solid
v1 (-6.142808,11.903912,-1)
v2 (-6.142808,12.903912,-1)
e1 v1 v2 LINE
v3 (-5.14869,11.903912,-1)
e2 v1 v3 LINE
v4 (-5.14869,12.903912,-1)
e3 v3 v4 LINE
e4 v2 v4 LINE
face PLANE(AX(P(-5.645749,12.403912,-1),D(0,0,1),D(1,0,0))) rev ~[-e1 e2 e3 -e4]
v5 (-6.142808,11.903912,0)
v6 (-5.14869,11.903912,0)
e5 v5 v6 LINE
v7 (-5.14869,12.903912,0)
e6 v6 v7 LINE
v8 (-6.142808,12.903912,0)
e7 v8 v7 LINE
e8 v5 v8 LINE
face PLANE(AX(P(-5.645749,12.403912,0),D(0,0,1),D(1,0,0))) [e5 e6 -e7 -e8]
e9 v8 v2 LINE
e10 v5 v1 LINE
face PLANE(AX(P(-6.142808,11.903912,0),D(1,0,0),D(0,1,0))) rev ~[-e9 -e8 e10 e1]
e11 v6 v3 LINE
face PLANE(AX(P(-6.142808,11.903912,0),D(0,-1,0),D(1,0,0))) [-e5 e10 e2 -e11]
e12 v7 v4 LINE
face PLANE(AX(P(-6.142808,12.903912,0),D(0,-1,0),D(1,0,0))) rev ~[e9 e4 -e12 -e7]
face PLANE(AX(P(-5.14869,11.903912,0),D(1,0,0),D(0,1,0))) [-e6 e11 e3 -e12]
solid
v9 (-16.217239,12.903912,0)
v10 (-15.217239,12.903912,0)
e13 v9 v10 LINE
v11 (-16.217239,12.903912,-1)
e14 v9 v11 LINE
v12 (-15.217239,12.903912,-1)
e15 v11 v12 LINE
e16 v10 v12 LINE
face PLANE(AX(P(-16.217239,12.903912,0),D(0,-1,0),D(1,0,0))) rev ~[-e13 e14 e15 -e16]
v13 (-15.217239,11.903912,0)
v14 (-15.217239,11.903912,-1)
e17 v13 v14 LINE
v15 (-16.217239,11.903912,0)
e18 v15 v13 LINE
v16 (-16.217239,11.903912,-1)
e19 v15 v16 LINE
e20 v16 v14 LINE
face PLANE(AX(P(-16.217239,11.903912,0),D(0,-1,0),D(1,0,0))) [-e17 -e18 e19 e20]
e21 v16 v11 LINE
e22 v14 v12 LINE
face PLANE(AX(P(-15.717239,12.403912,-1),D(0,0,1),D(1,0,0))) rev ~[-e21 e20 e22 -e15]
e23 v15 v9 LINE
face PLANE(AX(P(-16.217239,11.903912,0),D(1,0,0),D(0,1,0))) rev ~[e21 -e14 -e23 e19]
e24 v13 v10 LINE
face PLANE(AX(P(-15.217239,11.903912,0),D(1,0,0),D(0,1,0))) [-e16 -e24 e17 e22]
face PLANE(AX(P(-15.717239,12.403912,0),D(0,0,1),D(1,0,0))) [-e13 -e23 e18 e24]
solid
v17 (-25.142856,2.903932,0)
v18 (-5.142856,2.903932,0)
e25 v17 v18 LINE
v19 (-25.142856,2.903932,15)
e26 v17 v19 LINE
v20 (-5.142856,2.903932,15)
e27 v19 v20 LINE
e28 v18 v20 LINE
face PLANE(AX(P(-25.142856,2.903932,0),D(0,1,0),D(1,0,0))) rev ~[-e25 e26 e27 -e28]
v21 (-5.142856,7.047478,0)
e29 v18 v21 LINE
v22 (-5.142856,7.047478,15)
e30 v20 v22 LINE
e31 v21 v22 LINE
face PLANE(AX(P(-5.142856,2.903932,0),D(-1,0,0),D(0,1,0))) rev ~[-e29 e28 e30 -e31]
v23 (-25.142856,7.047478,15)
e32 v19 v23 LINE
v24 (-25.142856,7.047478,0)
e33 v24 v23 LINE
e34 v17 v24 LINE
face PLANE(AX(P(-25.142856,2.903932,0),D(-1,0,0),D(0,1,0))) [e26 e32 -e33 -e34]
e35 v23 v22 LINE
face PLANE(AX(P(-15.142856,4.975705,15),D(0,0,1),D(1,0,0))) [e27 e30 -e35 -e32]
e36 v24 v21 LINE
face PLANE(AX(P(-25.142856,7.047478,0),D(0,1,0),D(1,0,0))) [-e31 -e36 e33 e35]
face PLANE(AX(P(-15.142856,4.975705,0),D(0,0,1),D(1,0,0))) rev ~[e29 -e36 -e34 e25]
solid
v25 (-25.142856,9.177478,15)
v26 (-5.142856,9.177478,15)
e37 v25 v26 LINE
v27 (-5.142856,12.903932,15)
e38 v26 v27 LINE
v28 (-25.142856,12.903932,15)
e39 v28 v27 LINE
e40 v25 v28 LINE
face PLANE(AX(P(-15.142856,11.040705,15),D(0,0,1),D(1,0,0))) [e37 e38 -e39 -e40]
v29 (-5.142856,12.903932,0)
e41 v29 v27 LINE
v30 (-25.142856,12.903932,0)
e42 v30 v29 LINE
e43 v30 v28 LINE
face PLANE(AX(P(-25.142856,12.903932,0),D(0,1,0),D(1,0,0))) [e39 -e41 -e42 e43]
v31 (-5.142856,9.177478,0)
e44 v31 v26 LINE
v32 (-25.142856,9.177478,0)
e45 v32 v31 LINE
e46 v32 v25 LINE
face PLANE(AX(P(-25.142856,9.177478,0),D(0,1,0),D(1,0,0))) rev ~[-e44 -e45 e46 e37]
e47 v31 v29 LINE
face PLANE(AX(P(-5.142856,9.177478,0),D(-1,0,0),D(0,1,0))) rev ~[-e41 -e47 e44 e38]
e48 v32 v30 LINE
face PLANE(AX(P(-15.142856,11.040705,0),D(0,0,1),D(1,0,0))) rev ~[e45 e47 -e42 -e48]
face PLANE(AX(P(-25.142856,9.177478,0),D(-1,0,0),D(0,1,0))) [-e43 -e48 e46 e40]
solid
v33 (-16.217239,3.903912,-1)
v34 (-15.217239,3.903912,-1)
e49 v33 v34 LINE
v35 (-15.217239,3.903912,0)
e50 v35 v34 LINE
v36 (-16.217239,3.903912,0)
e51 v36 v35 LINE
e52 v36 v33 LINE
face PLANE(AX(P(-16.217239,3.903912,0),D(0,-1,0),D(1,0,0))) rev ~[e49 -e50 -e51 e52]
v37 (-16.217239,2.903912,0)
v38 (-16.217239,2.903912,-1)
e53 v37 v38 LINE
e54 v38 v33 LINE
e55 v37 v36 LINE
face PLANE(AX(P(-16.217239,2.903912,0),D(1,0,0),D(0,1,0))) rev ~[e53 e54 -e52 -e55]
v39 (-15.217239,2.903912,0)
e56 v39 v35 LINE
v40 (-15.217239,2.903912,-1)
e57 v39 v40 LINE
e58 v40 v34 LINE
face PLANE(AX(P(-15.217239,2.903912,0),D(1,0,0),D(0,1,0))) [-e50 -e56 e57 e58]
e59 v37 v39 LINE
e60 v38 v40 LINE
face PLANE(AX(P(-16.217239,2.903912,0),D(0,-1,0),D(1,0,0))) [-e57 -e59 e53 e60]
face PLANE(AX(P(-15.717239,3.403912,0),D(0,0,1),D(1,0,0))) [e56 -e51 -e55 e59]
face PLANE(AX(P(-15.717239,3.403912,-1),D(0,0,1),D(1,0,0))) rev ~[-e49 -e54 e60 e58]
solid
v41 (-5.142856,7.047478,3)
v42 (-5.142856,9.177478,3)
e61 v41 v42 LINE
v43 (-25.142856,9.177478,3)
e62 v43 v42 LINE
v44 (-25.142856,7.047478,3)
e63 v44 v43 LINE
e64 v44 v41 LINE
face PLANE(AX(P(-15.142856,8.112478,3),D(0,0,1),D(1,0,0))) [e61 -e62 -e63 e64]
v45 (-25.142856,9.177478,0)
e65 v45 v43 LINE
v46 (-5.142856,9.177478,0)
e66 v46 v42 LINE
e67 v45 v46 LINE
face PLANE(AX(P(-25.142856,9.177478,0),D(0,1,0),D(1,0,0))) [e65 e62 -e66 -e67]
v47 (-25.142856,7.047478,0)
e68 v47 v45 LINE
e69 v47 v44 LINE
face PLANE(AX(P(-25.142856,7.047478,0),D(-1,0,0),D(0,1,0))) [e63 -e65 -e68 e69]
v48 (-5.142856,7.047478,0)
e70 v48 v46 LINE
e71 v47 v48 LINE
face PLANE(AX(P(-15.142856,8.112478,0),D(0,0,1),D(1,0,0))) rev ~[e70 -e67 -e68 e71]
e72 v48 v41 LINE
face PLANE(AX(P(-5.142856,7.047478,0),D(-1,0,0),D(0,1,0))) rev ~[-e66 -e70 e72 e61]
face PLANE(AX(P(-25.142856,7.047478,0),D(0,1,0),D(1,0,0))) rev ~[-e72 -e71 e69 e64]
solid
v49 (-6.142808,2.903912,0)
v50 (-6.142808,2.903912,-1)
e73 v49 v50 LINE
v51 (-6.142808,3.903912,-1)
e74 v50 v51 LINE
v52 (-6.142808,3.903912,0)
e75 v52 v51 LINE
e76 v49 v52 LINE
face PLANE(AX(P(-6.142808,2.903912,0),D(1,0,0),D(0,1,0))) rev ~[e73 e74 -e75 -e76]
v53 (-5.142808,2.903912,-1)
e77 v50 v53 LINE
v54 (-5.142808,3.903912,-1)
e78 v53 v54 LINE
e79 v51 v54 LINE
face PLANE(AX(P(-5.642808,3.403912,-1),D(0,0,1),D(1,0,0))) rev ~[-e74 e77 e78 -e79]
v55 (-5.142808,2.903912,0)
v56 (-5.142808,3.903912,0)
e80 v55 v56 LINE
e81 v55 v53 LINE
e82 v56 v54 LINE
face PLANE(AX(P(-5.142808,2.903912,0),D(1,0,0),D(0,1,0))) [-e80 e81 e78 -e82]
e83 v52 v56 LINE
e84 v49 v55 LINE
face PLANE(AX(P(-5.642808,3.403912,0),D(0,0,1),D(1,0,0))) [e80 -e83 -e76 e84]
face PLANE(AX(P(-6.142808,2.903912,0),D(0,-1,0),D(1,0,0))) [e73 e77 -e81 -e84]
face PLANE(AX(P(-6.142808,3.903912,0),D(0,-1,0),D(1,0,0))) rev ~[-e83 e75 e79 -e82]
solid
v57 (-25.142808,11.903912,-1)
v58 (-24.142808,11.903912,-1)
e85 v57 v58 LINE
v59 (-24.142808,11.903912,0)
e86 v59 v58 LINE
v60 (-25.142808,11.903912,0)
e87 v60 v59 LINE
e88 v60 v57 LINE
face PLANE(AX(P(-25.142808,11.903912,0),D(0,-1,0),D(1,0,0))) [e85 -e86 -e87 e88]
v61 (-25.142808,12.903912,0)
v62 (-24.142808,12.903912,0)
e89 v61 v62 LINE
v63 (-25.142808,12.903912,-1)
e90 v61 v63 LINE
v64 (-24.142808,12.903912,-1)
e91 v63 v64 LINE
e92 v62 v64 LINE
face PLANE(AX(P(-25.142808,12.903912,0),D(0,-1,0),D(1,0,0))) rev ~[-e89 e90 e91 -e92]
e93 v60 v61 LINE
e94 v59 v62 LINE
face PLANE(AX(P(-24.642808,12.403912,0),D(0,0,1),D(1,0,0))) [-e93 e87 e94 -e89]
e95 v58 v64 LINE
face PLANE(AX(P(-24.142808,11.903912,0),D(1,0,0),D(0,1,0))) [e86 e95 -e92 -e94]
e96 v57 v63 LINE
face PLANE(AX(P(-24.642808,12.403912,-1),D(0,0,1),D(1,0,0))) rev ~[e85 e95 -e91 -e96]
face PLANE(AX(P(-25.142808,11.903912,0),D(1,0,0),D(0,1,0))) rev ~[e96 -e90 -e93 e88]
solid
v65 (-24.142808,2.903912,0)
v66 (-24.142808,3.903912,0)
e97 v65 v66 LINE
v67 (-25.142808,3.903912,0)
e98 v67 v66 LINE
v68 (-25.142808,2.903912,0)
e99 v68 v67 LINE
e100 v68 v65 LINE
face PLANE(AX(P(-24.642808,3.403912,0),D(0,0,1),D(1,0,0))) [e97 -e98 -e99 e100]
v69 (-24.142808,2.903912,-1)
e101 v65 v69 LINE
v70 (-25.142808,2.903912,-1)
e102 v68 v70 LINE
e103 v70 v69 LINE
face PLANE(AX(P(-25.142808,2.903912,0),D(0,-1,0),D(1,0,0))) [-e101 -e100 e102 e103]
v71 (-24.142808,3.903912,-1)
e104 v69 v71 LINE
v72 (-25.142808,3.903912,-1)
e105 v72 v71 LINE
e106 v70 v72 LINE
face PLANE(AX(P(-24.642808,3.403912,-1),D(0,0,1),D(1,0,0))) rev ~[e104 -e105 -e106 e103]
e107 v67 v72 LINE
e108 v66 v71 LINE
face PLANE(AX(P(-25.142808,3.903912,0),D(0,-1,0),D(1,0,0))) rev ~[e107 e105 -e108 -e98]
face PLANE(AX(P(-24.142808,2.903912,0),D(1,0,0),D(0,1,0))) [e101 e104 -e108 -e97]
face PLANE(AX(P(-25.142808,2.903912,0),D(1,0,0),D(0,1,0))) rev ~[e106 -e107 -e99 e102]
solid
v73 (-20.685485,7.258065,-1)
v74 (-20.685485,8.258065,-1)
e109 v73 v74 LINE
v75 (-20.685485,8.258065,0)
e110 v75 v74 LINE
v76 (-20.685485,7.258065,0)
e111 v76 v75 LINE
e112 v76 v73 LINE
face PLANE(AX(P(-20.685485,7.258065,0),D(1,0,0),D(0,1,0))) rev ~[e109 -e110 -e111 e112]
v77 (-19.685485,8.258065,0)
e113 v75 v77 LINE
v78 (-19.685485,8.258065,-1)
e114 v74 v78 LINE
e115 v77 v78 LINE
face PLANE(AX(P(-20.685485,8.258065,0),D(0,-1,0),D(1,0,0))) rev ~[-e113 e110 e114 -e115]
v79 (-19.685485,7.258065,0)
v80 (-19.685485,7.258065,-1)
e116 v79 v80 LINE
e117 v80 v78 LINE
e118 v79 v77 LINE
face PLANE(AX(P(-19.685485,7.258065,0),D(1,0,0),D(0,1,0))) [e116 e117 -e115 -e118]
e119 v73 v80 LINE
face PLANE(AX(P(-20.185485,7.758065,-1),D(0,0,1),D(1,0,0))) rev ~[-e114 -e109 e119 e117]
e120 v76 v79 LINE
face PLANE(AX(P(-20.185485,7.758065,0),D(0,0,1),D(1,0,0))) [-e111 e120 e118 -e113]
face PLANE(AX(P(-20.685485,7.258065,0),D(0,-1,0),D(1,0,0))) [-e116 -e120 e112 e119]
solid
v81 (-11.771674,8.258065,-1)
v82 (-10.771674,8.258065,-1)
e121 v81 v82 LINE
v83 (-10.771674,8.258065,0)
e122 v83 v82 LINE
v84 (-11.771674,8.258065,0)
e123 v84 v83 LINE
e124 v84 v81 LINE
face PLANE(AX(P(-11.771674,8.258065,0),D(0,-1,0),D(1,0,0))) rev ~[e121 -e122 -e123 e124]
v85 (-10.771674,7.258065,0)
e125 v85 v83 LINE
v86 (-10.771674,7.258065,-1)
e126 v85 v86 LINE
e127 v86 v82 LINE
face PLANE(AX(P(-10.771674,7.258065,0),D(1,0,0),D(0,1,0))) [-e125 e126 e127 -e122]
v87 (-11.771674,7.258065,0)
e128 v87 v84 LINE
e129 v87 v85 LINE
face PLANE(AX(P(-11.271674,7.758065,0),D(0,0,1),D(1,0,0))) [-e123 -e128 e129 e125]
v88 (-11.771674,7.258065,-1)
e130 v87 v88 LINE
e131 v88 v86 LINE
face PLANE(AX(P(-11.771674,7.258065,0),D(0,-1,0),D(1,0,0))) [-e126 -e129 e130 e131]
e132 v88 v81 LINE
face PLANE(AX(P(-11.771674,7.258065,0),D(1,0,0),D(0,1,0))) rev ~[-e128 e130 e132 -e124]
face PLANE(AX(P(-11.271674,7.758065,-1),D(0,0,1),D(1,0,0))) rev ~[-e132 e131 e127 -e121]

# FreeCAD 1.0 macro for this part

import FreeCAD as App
import Part
import Sketcher


def add_polygon(sketch, points):
    """Adds a closed chain of lines whose ends are joined by coincident constraints."""
    first, n = sketch.GeometryCount, len(points)
    for a, b in zip(points, points[1:] + points[:1]):
        sketch.addGeometry(Part.LineSegment(App.Vector(*a, 0), App.Vector(*b, 0)), False)
    for i in range(n):
        sketch.addConstraint(Sketcher.Constraint("Coincident", first + i, 2, first + (i + 1) % n, 1))

doc = App.newDocument("Part")
body = doc.addObject("PartDesign::Body", "Body")

# Sketch on XY plane
sketch1 = body.newObject("Sketcher::SketchObject", "Sketch")
sketch1.AttachmentSupport = (doc.getObject("XY_Plane"), [""])
sketch1.MapMode = "FlatFace"
add_polygon(sketch1, [(-25.1, 12.9), (-25.1, 9.2), (-5.1, 9.2), (-5.1, 12.9)])  # lines 0-3
sketch1.addConstraint(Sketcher.Constraint("Vertical", 0))
sketch1.addConstraint(Sketcher.Constraint("Horizontal", 1))
sketch1.addConstraint(Sketcher.Constraint("Vertical", 2))
sketch1.addConstraint(Sketcher.Constraint("Horizontal", 3))
sketch1.addConstraint(Sketcher.Constraint("DistanceX", 1, 1, 1, 2, 20.0))
sketch1.addConstraint(Sketcher.Constraint("DistanceY", 0, 2, 0, 1, 3.726454))
sketch1.addConstraint(Sketcher.Constraint("DistanceY", -1, 1, 0, 2, 9.177478))
sketch1.addConstraint(Sketcher.Constraint("DistanceX", 0, 2, -1, 1, 25.142856))
pad1 = body.newObject("PartDesign::Pad", "Pad")
pad1.Profile = sketch1
pad1.Length = 15
body2 = doc.addObject("PartDesign::Body", "Body001")

# Sketch on XY plane
sketch2 = body2.newObject("Sketcher::SketchObject", "Sketch001")
sketch2.AttachmentSupport = (doc.getObject("XY_Plane001"), [""])
sketch2.MapMode = "FlatFace"
add_polygon(sketch2, [(-25.1, 7), (-25.1, 2.9), (-5.1, 2.9), (-5.1, 7)])  # lines 0-3
sketch2.addConstraint(Sketcher.Constraint("Vertical", 0))
sketch2.addConstraint(Sketcher.Constraint("Horizontal", 1))
sketch2.addConstraint(Sketcher.Constraint("Vertical", 2))
sketch2.addConstraint(Sketcher.Constraint("Horizontal", 3))
sketch2.addConstraint(Sketcher.Constraint("DistanceX", 1, 1, 1, 2, 20.0))
sketch2.addConstraint(Sketcher.Constraint("DistanceY", 0, 2, 0, 1, 4.143546))
sketch2.addConstraint(Sketcher.Constraint("DistanceY", -1, 1, 2, 2, 7.047478))
sketch2.addConstraint(Sketcher.Constraint("DistanceX", 0, 2, -1, 1, 25.142856))
pad2 = body2.newObject("PartDesign::Pad", "Pad001")
pad2.Profile = sketch2
pad2.Length = 15
body3 = doc.addObject("PartDesign::Body", "Body002")

# Sketch on XY plane
sketch3 = body3.newObject("Sketcher::SketchObject", "Sketch002")
sketch3.AttachmentSupport = (doc.getObject("XY_Plane002"), [""])
sketch3.MapMode = "FlatFace"
add_polygon(sketch3, [(-25.1, 9.2), (-25.1, 7), (-5.1, 7), (-5.1, 9.2)])  # lines 0-3
sketch3.addConstraint(Sketcher.Constraint("Vertical", 0))
sketch3.addConstraint(Sketcher.Constraint("Horizontal", 1))
sketch3.addConstraint(Sketcher.Constraint("Vertical", 2))
sketch3.addConstraint(Sketcher.Constraint("Horizontal", 3))
sketch3.addConstraint(Sketcher.Constraint("DistanceX", 1, 1, 1, 2, 20.0))
sketch3.addConstraint(Sketcher.Constraint("DistanceY", 0, 2, 0, 1, 2.13))
sketch3.addConstraint(Sketcher.Constraint("DistanceY", -1, 1, 0, 2, 7.047478))
sketch3.addConstraint(Sketcher.Constraint("DistanceX", 0, 2, -1, 1, 25.142856))
pad3 = body3.newObject("PartDesign::Pad", "Pad002")
pad3.Profile = sketch3
pad3.Length = 3
body4 = doc.addObject("PartDesign::Body", "Body003")

# Sketch on XY plane
sketch4 = body4.newObject("Sketcher::SketchObject", "Sketch003")
sketch4.AttachmentSupport = (doc.getObject("XY_Plane003"), [""])
sketch4.MapMode = "FlatFace"
add_polygon(sketch4, [(-25.1, 3.9), (-25.1, 2.9), (-24.1, 2.9), (-24.1, 3.9)])  # lines 0-3
sketch4.addConstraint(Sketcher.Constraint("Vertical", 0))
sketch4.addConstraint(Sketcher.Constraint("Horizontal", 1))
sketch4.addConstraint(Sketcher.Constraint("Vertical", 2))
sketch4.addConstraint(Sketcher.Constraint("Horizontal", 3))
sketch4.addConstraint(Sketcher.Constraint("Equal", 3, 0))
sketch4.addConstraint(Sketcher.Constraint("DistanceX", 1, 1, 1, 2, 1.0))
sketch4.addConstraint(Sketcher.Constraint("DistanceX", 0, 2, -1, 1, 25.142808))
sketch4.addConstraint(Sketcher.Constraint("DistanceY", -1, 1, 0, 2, 2.903912))
pad4 = body4.newObject("PartDesign::Pad", "Pad003")
pad4.Profile = sketch4
pad4.Length = 1
pad4.Reversed = True
body5 = doc.addObject("PartDesign::Body", "Body004")

# Sketch on XY plane
sketch5 = body5.newObject("Sketcher::SketchObject", "Sketch004")
sketch5.AttachmentSupport = (doc.getObject("XY_Plane004"), [""])
sketch5.MapMode = "FlatFace"
add_polygon(sketch5, [(-6.1, 3.9), (-6.1, 2.9), (-5.1, 2.9), (-5.1, 3.9)])  # lines 0-3
sketch5.addConstraint(Sketcher.Constraint("Vertical", 0))
sketch5.addConstraint(Sketcher.Constraint("Horizontal", 1))
sketch5.addConstraint(Sketcher.Constraint("Vertical", 2))
sketch5.addConstraint(Sketcher.Constraint("Horizontal", 3))
sketch5.addConstraint(Sketcher.Constraint("Equal", 3, 0))
sketch5.addConstraint(Sketcher.Constraint("DistanceX", 1, 1, 1, 2, 1.0))
sketch5.addConstraint(Sketcher.Constraint("DistanceX", 0, 2, -1, 1, 6.142808))
sketch5.addConstraint(Sketcher.Constraint("DistanceY", -1, 1, 0, 2, 2.903912))
pad5 = body5.newObject("PartDesign::Pad", "Pad004")
pad5.Profile = sketch5
pad5.Length = 1
pad5.Reversed = True
body6 = doc.addObject("PartDesign::Body", "Body005")

# Sketch on XY plane
sketch6 = body6.newObject("Sketcher::SketchObject", "Sketch005")
sketch6.AttachmentSupport = (doc.getObject("XY_Plane005"), [""])
sketch6.MapMode = "FlatFace"
add_polygon(sketch6, [(-6.1, 12.9), (-6.1, 11.9), (-5.1, 11.9), (-5.1, 12.9)])  # lines 0-3
sketch6.addConstraint(Sketcher.Constraint("Vertical", 0))
sketch6.addConstraint(Sketcher.Constraint("Horizontal", 1))
sketch6.addConstraint(Sketcher.Constraint("Vertical", 2))
sketch6.addConstraint(Sketcher.Constraint("Horizontal", 3))
sketch6.addConstraint(Sketcher.Constraint("DistanceY", 0, 2, 0, 1, 1.0))
sketch6.addConstraint(Sketcher.Constraint("DistanceX", 1, 1, 1, 2, 0.994118))
sketch6.addConstraint(Sketcher.Constraint("DistanceX", 1, 2, -1, 1, 5.14869))
sketch6.addConstraint(Sketcher.Constraint("DistanceY", -1, 1, 0, 2, 11.903912))
pad6 = body6.newObject("PartDesign::Pad", "Pad005")
pad6.Profile = sketch6
pad6.Length = 1
pad6.Reversed = True
body7 = doc.addObject("PartDesign::Body", "Body006")

# Sketch on XY plane
sketch7 = body7.newObject("Sketcher::SketchObject", "Sketch006")
sketch7.AttachmentSupport = (doc.getObject("XY_Plane006"), [""])
sketch7.MapMode = "FlatFace"
add_polygon(sketch7, [(-11.8, 8.3), (-11.8, 7.3), (-10.8, 7.3), (-10.8, 8.3)])  # lines 0-3
sketch7.addConstraint(Sketcher.Constraint("Vertical", 0))
sketch7.addConstraint(Sketcher.Constraint("Horizontal", 1))
sketch7.addConstraint(Sketcher.Constraint("Vertical", 2))
sketch7.addConstraint(Sketcher.Constraint("Horizontal", 3))
sketch7.addConstraint(Sketcher.Constraint("Equal", 3, 0))
sketch7.addConstraint(Sketcher.Constraint("DistanceX", 1, 1, 1, 2, 1.0))
sketch7.addConstraint(Sketcher.Constraint("DistanceX", 0, 2, -1, 1, 11.771674))
sketch7.addConstraint(Sketcher.Constraint("DistanceY", -1, 1, 0, 2, 7.258065))
pad7 = body7.newObject("PartDesign::Pad", "Pad006")
pad7.Profile = sketch7
pad7.Length = 1
pad7.Reversed = True
body8 = doc.addObject("PartDesign::Body", "Body007")

# Sketch on XY plane
sketch8 = body8.newObject("Sketcher::SketchObject", "Sketch007")
sketch8.AttachmentSupport = (doc.getObject("XY_Plane007"), [""])
sketch8.MapMode = "FlatFace"
add_polygon(sketch8, [(-20.7, 8.3), (-20.7, 7.3), (-19.7, 7.3), (-19.7, 8.3)])  # lines 0-3
sketch8.addConstraint(Sketcher.Constraint("Vertical", 0))
sketch8.addConstraint(Sketcher.Constraint("Horizontal", 1))
sketch8.addConstraint(Sketcher.Constraint("Vertical", 2))
sketch8.addConstraint(Sketcher.Constraint("Horizontal", 3))
sketch8.addConstraint(Sketcher.Constraint("Equal", 3, 0))
sketch8.addConstraint(Sketcher.Constraint("DistanceX", 1, 1, 1, 2, 1.0))
sketch8.addConstraint(Sketcher.Constraint("DistanceX", 0, 2, -1, 1, 20.685485))
sketch8.addConstraint(Sketcher.Constraint("DistanceY", -1, 1, 0, 2, 7.258065))
pad8 = body8.newObject("PartDesign::Pad", "Pad007")
pad8.Profile = sketch8
pad8.Length = 1
pad8.Reversed = True
body9 = doc.addObject("PartDesign::Body", "Body008")

# Sketch on XY plane
sketch9 = body9.newObject("Sketcher::SketchObject", "Sketch008")
sketch9.AttachmentSupport = (doc.getObject("XY_Plane008"), [""])
sketch9.MapMode = "FlatFace"
add_polygon(sketch9, [(-25.1, 12.9), (-25.1, 11.9), (-24.1, 11.9), (-24.1, 12.9)])  # lines 0-3
sketch9.addConstraint(Sketcher.Constraint("Vertical", 0))
sketch9.addConstraint(Sketcher.Constraint("Horizontal", 1))
sketch9.addConstraint(Sketcher.Constraint("Vertical", 2))
sketch9.addConstraint(Sketcher.Constraint("Horizontal", 3))
sketch9.addConstraint(Sketcher.Constraint("Equal", 3, 0))
sketch9.addConstraint(Sketcher.Constraint("DistanceX", 1, 1, 1, 2, 1.0))
sketch9.addConstraint(Sketcher.Constraint("DistanceX", 0, 2, -1, 1, 25.142808))
sketch9.addConstraint(Sketcher.Constraint("DistanceY", -1, 1, 0, 2, 11.903912))
pad9 = body9.newObject("PartDesign::Pad", "Pad008")
pad9.Profile = sketch9
pad9.Length = 1
pad9.Reversed = True
body10 = doc.addObject("PartDesign::Body", "Body009")

# Sketch on XY plane
sketch10 = body10.newObject("Sketcher::SketchObject", "Sketch009")
sketch10.AttachmentSupport = (doc.getObject("XY_Plane009"), [""])
sketch10.MapMode = "FlatFace"
add_polygon(sketch10, [(-16.2, 12.9), (-16.2, 11.9), (-15.2, 11.9), (-15.2, 12.9)])  # lines 0-3
sketch10.addConstraint(Sketcher.Constraint("Vertical", 0))
sketch10.addConstraint(Sketcher.Constraint("Horizontal", 1))
sketch10.addConstraint(Sketcher.Constraint("Vertical", 2))
sketch10.addConstraint(Sketcher.Constraint("Horizontal", 3))
sketch10.addConstraint(Sketcher.Constraint("Equal", 3, 0))
sketch10.addConstraint(Sketcher.Constraint("DistanceX", 1, 1, 1, 2, 1.0))
sketch10.addConstraint(Sketcher.Constraint("DistanceX", 0, 2, -1, 1, 16.217239))
sketch10.addConstraint(Sketcher.Constraint("DistanceY", -1, 1, 0, 2, 11.903912))
pad10 = body10.newObject("PartDesign::Pad", "Pad009")
pad10.Profile = sketch10
pad10.Length = 1
pad10.Reversed = True
body11 = doc.addObject("PartDesign::Body", "Body010")

# Sketch on XY plane
sketch11 = body11.newObject("Sketcher::SketchObject", "Sketch010")
sketch11.AttachmentSupport = (doc.getObject("XY_Plane010"), [""])
sketch11.MapMode = "FlatFace"
add_polygon(sketch11, [(-16.2, 3.9), (-16.2, 2.9), (-15.2, 2.9), (-15.2, 3.9)])  # lines 0-3
sketch11.addConstraint(Sketcher.Constraint("Vertical", 0))
sketch11.addConstraint(Sketcher.Constraint("Horizontal", 1))
sketch11.addConstraint(Sketcher.Constraint("Vertical", 2))
sketch11.addConstraint(Sketcher.Constraint("Horizontal", 3))
sketch11.addConstraint(Sketcher.Constraint("Equal", 3, 0))
sketch11.addConstraint(Sketcher.Constraint("DistanceX", 1, 1, 1, 2, 1.0))
sketch11.addConstraint(Sketcher.Constraint("DistanceX", 0, 2, -1, 1, 16.217239))
sketch11.addConstraint(Sketcher.Constraint("DistanceY", -1, 1, 0, 2, 2.903912))
pad11 = body11.newObject("PartDesign::Pad", "Pad010")
pad11.Profile = sketch11
pad11.Length = 1
pad11.Reversed = True

doc.recompute()
